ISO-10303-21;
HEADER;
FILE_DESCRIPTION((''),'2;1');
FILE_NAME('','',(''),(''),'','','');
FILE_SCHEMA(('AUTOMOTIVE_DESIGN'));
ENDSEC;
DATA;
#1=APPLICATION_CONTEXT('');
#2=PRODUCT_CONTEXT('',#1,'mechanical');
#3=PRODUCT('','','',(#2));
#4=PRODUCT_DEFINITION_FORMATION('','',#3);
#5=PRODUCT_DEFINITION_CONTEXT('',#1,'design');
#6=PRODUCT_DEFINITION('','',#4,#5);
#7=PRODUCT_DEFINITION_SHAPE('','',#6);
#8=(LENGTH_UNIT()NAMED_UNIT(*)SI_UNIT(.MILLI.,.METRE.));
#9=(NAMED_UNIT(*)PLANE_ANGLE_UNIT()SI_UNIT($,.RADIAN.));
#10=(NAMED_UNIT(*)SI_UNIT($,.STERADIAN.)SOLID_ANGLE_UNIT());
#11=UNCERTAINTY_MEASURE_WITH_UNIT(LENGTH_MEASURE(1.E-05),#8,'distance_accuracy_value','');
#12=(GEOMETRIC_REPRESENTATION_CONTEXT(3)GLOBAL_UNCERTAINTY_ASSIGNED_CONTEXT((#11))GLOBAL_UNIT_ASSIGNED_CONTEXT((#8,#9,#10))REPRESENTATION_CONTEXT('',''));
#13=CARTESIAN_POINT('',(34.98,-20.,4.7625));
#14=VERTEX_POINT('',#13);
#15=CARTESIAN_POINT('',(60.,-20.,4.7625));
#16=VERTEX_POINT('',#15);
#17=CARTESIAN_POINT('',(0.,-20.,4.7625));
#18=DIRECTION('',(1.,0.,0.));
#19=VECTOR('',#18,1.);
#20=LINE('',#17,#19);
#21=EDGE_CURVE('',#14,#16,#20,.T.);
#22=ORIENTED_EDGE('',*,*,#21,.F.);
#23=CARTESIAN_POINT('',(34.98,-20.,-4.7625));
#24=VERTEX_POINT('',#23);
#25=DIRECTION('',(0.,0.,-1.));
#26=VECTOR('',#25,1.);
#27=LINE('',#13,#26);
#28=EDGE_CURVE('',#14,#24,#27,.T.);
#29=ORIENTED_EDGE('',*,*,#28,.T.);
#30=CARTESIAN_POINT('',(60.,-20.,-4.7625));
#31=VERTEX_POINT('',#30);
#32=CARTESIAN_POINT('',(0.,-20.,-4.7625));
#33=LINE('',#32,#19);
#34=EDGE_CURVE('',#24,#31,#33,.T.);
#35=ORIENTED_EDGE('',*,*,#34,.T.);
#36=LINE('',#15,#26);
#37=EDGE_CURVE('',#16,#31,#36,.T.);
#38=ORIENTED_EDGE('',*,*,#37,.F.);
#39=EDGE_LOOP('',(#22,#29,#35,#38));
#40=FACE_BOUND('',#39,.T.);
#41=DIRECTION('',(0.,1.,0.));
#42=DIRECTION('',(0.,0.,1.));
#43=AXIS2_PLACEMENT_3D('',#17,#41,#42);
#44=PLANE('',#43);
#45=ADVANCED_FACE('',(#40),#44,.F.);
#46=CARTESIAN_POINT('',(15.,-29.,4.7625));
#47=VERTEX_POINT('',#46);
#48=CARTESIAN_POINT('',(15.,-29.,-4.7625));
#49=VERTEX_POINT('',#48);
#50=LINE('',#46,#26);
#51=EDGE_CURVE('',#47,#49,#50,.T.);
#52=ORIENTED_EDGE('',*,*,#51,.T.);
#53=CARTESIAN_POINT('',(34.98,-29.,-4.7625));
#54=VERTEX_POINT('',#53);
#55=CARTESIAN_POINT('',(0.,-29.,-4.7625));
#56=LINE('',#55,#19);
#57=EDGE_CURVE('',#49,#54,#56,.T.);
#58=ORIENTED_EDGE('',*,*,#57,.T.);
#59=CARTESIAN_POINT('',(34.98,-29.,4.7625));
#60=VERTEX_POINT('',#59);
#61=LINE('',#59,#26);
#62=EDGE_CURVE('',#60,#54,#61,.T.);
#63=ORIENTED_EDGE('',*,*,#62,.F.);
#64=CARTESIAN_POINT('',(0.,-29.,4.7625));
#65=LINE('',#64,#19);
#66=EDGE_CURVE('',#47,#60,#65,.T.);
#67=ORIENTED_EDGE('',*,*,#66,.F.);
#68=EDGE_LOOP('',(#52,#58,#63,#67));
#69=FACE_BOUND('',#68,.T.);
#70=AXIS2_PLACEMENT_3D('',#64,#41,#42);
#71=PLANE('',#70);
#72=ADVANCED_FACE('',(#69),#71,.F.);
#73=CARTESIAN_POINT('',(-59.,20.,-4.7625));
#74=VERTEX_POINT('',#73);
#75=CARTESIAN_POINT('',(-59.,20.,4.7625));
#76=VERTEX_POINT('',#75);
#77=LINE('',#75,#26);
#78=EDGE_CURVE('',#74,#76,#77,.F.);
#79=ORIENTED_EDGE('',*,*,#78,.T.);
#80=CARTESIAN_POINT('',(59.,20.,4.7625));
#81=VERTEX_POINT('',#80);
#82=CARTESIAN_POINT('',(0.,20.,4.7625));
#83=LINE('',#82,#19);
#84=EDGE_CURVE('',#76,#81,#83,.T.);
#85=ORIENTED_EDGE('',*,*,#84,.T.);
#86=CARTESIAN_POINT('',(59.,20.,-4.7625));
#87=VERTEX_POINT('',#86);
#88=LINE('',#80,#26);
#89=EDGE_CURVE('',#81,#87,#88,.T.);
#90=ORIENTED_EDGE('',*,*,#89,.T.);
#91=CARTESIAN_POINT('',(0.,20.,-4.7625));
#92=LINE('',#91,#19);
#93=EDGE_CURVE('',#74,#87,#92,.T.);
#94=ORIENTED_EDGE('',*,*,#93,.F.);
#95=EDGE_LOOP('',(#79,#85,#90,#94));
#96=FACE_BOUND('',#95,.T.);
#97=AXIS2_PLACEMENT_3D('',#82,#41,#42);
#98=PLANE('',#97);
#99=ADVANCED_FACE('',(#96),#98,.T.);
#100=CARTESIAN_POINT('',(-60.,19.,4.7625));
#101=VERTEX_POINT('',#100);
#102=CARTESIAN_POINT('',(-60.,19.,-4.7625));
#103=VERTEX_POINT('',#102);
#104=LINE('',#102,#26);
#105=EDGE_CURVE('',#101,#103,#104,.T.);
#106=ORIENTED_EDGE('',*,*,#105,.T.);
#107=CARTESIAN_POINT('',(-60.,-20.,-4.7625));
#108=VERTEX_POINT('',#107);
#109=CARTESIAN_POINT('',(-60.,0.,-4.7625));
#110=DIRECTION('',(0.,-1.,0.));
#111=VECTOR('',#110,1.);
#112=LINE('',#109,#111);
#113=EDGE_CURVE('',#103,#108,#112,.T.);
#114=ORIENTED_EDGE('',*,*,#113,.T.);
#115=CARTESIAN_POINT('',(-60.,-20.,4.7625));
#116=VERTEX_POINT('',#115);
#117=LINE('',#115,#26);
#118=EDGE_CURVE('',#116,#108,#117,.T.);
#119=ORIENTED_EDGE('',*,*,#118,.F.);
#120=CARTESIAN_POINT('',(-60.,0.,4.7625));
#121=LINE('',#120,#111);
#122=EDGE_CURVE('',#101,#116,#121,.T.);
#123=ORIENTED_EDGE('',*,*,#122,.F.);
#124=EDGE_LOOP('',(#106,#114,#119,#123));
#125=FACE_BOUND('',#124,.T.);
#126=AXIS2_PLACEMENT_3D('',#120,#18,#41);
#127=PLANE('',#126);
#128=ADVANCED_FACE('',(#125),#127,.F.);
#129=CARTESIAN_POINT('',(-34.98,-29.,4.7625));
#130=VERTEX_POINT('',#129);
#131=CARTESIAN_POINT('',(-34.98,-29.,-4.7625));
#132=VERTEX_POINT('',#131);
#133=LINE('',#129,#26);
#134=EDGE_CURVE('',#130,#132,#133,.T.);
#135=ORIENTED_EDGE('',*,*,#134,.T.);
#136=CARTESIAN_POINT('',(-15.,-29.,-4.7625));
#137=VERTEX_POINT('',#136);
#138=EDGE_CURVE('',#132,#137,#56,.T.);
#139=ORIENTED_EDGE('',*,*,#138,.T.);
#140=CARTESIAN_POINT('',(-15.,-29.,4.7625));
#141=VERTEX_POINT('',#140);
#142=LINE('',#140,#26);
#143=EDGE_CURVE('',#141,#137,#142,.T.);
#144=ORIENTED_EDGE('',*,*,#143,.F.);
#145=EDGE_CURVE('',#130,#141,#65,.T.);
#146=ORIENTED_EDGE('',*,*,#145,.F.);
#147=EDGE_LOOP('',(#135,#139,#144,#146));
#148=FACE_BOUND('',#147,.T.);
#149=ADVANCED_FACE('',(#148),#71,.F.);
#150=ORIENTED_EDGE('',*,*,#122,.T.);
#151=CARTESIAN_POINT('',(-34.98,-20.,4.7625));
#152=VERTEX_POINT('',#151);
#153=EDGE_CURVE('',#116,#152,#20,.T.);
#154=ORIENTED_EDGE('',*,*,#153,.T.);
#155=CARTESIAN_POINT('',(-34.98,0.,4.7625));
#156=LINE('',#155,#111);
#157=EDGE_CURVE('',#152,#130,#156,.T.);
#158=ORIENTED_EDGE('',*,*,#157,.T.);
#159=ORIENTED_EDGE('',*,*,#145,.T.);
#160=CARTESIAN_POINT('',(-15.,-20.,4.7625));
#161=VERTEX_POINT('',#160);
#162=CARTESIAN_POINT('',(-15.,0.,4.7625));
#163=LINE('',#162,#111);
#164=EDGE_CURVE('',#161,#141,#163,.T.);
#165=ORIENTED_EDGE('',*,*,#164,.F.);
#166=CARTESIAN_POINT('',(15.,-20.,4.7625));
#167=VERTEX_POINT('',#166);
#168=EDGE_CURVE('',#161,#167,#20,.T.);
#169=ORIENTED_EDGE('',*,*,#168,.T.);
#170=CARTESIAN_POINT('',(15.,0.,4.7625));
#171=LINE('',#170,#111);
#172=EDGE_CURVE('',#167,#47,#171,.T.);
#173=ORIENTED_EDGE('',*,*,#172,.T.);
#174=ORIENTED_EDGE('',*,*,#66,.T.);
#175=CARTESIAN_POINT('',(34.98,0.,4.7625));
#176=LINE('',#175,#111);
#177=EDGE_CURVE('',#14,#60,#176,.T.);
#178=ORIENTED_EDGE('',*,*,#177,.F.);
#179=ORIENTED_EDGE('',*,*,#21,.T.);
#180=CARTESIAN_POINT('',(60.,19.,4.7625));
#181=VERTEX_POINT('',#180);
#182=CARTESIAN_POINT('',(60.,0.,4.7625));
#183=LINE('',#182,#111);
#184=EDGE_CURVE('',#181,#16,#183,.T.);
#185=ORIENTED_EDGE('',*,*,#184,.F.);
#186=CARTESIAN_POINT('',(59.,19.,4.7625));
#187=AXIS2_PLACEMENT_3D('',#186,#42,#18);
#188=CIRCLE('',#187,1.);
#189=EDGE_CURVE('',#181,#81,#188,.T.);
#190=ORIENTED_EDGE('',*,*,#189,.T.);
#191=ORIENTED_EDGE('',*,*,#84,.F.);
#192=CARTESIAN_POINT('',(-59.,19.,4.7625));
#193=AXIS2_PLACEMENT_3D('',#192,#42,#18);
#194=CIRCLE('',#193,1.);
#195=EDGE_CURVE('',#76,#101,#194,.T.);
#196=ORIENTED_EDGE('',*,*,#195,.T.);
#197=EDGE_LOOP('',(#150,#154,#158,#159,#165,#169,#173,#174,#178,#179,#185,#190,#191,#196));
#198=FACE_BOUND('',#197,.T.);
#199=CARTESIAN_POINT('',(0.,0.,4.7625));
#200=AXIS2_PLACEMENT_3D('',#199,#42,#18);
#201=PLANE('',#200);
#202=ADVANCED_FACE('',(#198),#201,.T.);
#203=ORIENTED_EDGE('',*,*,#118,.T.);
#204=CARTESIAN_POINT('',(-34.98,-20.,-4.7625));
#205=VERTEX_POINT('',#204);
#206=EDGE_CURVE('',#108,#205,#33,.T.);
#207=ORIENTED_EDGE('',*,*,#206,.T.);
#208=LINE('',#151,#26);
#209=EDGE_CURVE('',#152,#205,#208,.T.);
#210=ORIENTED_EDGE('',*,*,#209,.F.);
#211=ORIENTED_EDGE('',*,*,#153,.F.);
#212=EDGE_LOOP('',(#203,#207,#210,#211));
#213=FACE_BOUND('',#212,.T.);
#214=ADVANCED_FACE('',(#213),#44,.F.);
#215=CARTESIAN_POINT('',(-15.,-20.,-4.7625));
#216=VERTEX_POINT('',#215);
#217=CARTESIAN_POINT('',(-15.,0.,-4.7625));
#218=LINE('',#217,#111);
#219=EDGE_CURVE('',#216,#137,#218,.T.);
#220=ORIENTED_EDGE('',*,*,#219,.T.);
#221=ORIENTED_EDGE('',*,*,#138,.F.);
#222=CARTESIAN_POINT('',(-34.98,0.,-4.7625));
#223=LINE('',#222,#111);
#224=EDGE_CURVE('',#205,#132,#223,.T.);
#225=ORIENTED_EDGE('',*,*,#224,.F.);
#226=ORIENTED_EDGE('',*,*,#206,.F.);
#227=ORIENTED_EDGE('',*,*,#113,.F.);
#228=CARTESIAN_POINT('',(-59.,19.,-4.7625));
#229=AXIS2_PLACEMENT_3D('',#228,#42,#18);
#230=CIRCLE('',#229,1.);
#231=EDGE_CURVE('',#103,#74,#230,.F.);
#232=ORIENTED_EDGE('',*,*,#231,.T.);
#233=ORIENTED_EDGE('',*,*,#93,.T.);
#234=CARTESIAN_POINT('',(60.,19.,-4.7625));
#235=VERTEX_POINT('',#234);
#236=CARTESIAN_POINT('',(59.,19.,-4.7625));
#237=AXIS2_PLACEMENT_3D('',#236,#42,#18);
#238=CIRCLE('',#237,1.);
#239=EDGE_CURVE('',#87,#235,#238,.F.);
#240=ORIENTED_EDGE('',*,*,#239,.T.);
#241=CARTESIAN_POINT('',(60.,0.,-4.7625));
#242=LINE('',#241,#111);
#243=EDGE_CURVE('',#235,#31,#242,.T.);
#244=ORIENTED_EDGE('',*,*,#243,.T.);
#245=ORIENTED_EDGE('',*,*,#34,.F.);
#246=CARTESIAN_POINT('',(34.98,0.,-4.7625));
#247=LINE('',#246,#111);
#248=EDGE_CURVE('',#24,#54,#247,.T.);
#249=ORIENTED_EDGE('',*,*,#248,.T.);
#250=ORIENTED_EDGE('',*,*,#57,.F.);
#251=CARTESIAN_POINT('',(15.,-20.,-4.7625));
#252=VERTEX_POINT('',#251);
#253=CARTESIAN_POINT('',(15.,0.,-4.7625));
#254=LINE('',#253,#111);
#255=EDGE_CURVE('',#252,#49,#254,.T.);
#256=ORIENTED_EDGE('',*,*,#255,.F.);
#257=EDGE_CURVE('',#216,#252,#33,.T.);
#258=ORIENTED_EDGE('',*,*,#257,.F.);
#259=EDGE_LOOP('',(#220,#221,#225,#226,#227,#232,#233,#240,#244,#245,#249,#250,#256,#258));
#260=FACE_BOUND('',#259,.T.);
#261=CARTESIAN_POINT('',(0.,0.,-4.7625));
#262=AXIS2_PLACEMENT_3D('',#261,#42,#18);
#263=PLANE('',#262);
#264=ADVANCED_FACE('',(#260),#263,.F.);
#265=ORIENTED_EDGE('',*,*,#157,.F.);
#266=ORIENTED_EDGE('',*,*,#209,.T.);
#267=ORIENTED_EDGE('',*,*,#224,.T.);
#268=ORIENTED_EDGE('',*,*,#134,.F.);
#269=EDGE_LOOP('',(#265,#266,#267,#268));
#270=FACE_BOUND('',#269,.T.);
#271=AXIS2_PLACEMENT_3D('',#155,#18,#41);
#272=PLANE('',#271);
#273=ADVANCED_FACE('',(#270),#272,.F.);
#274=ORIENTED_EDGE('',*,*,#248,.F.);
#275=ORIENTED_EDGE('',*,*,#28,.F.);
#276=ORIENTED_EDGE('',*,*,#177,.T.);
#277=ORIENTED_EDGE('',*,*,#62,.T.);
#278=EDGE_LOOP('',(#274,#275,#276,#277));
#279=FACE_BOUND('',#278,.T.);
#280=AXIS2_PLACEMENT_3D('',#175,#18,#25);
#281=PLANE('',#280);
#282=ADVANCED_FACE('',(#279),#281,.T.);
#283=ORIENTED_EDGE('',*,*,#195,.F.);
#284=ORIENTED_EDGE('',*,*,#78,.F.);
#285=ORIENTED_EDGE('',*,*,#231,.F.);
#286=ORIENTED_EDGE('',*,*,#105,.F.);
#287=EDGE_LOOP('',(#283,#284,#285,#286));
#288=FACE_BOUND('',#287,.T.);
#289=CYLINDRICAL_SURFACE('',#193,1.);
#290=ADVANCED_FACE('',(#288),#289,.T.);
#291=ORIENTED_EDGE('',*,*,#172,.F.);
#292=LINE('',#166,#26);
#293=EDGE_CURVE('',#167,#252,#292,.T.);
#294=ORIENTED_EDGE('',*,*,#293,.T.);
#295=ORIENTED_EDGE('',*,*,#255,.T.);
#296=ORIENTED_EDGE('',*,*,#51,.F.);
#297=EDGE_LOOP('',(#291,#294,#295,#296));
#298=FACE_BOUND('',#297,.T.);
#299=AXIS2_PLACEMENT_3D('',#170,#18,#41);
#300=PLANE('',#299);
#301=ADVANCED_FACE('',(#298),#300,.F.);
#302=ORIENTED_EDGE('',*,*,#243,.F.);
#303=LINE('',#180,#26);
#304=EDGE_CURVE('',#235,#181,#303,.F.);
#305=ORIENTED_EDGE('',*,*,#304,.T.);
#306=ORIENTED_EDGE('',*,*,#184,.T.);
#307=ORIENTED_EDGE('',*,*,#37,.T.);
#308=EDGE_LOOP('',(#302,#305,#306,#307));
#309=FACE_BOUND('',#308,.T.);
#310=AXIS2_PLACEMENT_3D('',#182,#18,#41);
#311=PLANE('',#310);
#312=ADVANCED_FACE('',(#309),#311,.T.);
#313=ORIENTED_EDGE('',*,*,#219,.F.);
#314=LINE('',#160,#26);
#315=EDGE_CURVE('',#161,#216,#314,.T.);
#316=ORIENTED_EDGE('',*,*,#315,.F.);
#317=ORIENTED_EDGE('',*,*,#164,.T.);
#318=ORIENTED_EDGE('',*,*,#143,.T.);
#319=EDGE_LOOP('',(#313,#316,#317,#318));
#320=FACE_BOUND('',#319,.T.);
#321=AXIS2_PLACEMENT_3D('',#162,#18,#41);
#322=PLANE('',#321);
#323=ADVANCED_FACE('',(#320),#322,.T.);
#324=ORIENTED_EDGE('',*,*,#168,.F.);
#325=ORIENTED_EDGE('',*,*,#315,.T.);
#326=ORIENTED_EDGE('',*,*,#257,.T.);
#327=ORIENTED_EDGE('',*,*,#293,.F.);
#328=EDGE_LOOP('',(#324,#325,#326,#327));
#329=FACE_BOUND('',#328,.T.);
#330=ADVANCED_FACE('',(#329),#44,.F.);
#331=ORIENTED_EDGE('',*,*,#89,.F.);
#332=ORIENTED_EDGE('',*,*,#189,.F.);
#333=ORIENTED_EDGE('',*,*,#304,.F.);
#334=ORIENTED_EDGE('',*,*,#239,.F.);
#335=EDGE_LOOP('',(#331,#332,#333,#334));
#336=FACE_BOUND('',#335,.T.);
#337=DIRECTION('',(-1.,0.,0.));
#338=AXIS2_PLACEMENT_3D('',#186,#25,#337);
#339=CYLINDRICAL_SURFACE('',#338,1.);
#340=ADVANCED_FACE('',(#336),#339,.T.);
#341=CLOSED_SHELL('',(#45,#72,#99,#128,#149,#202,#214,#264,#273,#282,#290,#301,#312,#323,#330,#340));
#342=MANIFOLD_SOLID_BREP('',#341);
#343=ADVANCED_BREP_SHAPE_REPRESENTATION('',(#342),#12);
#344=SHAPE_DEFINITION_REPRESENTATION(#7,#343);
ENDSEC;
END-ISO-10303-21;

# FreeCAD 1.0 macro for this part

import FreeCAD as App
import Part
import Sketcher
Q = App.Units.Quantity


def edges_at(feature, points):
    """Names of the edges that pass closest to the given points."""
    edges = feature.Shape.Edges
    near = lambda p: min(range(len(edges)), key=lambda i: edges[i].distToShape(Part.Vertex(*p))[0])
    return sorted({f"Edge{near(p) + 1}" for p in points})

doc = App.newDocument("Part")
params = doc.addObject("Spreadsheet::Sheet", "Params")
for row, (alias, value) in enumerate([
    ("sketch1_width", "30 mm"),
    ("sketch1_width2", "120 mm"),
    ("sketch1_height", "40 mm"),
    ("sketch1_height2", "9 mm"),
    ("sketch1_width3", "25.02 mm"),
    ("pad1_length", "9.525 mm"),
    ("fillet_radius", "1 mm"),
], start=1):
    params.set(f"A{row}", alias)
    params.set(f"B{row}", "=" + value)
    params.setAlias(f"B{row}", alias)

body = doc.addObject("PartDesign::Body", "Body")

sketch1 = body.newObject("Sketcher::SketchObject", "Sketch")
sketch1.AttachmentSupport = (doc.getObject("XY_Plane"), [""])
sketch1.MapMode = "FlatFace"
sketch1.addGeometry([
    Part.LineSegment(App.Vector(-60, 20, 0), App.Vector(-60, -20, 0)),
    Part.LineSegment(App.Vector(-60, -20, 0), App.Vector(-35, -20, 0)),
    Part.LineSegment(App.Vector(-35, -20, 0), App.Vector(-35, -29, 0)),
    Part.LineSegment(App.Vector(-35, -29, 0), App.Vector(-15, -29, 0)),
    Part.LineSegment(App.Vector(-15, -29, 0), App.Vector(-15, -20, 0)),
    Part.LineSegment(App.Vector(-15, -20, 0), App.Vector(15, -20, 0)),
    Part.LineSegment(App.Vector(15, -20, 0), App.Vector(15, -29, 0)),
    Part.LineSegment(App.Vector(15, -29, 0), App.Vector(35, -29, 0)),
    Part.LineSegment(App.Vector(35, -29, 0), App.Vector(35, -20, 0)),
    Part.LineSegment(App.Vector(35, -20, 0), App.Vector(60, -20, 0)),
    Part.LineSegment(App.Vector(60, -20, 0), App.Vector(60, 20, 0)),
    Part.LineSegment(App.Vector(60, 20, 0), App.Vector(-60, 20, 0)),
], False)
sketch1.addConstraint([
    Sketcher.Constraint("Coincident", 0, 2, 1, 1),
    Sketcher.Constraint("Coincident", 1, 2, 2, 1),
    Sketcher.Constraint("Coincident", 2, 2, 3, 1),
    Sketcher.Constraint("Coincident", 3, 2, 4, 1),
    Sketcher.Constraint("Coincident", 4, 2, 5, 1),
    Sketcher.Constraint("Coincident", 5, 2, 6, 1),
    Sketcher.Constraint("Coincident", 6, 2, 7, 1),
    Sketcher.Constraint("Coincident", 7, 2, 8, 1),
    Sketcher.Constraint("Coincident", 8, 2, 9, 1),
    Sketcher.Constraint("Coincident", 9, 2, 10, 1),
    Sketcher.Constraint("Coincident", 10, 2, 11, 1),
    Sketcher.Constraint("Coincident", 11, 2, 0, 1),
    Sketcher.Constraint("Vertical", 0),
    Sketcher.Constraint("Horizontal", 1),
    Sketcher.Constraint("Vertical", 2),
    Sketcher.Constraint("Horizontal", 3),
    Sketcher.Constraint("Vertical", 4),
    Sketcher.Constraint("Horizontal", 5),
    Sketcher.Constraint("Vertical", 6),
    Sketcher.Constraint("Horizontal", 7),
    Sketcher.Constraint("Vertical", 8),
    Sketcher.Constraint("Horizontal", 9),
    Sketcher.Constraint("Vertical", 10),
    Sketcher.Constraint("Horizontal", 11),
    Sketcher.Constraint("Symmetric", 0, 2, 10, 2, -1, 1),
    Sketcher.Constraint("Symmetric", 3, 2, 6, 2, -2),
    Sketcher.Constraint("Symmetric", 1, 2, 8, 2, -2),
    Sketcher.Constraint("Horizontal", 1, 2, 4, 2),
    Sketcher.Constraint("DistanceX", 5, 1, 5, 2, Q("30 mm")),
    Sketcher.Constraint("DistanceX", 11, 2, 11, 1, Q("120 mm")),
    Sketcher.Constraint("DistanceY", 0, 2, 0, 1, Q("40 mm")),
    Sketcher.Constraint("DistanceY", 2, 2, 2, 1, Q("9 mm")),
    Sketcher.Constraint("DistanceX", 1, 1, 1, 2, Q("25.02 mm")),
])
sketch1.setExpression("Constraints[28]", "Params.sketch1_width")
sketch1.setExpression("Constraints[29]", "Params.sketch1_width2")
sketch1.setExpression("Constraints[30]", "Params.sketch1_height")
sketch1.setExpression("Constraints[31]", "Params.sketch1_height2")
sketch1.setExpression("Constraints[32]", "Params.sketch1_width3")
pad1 = body.newObject("PartDesign::Pad", "Pad")
pad1.Profile = sketch1
pad1.setExpression("Length", "Params.pad1_length")
pad1.Midplane = True
doc.recompute()

fillet = body.newObject("PartDesign::Fillet", "Fillet")
fillet.Base = (pad1, edges_at(pad1, [(-60, 20, 0), (60, 20, 0)]))
fillet.setExpression("Radius", "Params.fillet_radius")

doc.recompute()
